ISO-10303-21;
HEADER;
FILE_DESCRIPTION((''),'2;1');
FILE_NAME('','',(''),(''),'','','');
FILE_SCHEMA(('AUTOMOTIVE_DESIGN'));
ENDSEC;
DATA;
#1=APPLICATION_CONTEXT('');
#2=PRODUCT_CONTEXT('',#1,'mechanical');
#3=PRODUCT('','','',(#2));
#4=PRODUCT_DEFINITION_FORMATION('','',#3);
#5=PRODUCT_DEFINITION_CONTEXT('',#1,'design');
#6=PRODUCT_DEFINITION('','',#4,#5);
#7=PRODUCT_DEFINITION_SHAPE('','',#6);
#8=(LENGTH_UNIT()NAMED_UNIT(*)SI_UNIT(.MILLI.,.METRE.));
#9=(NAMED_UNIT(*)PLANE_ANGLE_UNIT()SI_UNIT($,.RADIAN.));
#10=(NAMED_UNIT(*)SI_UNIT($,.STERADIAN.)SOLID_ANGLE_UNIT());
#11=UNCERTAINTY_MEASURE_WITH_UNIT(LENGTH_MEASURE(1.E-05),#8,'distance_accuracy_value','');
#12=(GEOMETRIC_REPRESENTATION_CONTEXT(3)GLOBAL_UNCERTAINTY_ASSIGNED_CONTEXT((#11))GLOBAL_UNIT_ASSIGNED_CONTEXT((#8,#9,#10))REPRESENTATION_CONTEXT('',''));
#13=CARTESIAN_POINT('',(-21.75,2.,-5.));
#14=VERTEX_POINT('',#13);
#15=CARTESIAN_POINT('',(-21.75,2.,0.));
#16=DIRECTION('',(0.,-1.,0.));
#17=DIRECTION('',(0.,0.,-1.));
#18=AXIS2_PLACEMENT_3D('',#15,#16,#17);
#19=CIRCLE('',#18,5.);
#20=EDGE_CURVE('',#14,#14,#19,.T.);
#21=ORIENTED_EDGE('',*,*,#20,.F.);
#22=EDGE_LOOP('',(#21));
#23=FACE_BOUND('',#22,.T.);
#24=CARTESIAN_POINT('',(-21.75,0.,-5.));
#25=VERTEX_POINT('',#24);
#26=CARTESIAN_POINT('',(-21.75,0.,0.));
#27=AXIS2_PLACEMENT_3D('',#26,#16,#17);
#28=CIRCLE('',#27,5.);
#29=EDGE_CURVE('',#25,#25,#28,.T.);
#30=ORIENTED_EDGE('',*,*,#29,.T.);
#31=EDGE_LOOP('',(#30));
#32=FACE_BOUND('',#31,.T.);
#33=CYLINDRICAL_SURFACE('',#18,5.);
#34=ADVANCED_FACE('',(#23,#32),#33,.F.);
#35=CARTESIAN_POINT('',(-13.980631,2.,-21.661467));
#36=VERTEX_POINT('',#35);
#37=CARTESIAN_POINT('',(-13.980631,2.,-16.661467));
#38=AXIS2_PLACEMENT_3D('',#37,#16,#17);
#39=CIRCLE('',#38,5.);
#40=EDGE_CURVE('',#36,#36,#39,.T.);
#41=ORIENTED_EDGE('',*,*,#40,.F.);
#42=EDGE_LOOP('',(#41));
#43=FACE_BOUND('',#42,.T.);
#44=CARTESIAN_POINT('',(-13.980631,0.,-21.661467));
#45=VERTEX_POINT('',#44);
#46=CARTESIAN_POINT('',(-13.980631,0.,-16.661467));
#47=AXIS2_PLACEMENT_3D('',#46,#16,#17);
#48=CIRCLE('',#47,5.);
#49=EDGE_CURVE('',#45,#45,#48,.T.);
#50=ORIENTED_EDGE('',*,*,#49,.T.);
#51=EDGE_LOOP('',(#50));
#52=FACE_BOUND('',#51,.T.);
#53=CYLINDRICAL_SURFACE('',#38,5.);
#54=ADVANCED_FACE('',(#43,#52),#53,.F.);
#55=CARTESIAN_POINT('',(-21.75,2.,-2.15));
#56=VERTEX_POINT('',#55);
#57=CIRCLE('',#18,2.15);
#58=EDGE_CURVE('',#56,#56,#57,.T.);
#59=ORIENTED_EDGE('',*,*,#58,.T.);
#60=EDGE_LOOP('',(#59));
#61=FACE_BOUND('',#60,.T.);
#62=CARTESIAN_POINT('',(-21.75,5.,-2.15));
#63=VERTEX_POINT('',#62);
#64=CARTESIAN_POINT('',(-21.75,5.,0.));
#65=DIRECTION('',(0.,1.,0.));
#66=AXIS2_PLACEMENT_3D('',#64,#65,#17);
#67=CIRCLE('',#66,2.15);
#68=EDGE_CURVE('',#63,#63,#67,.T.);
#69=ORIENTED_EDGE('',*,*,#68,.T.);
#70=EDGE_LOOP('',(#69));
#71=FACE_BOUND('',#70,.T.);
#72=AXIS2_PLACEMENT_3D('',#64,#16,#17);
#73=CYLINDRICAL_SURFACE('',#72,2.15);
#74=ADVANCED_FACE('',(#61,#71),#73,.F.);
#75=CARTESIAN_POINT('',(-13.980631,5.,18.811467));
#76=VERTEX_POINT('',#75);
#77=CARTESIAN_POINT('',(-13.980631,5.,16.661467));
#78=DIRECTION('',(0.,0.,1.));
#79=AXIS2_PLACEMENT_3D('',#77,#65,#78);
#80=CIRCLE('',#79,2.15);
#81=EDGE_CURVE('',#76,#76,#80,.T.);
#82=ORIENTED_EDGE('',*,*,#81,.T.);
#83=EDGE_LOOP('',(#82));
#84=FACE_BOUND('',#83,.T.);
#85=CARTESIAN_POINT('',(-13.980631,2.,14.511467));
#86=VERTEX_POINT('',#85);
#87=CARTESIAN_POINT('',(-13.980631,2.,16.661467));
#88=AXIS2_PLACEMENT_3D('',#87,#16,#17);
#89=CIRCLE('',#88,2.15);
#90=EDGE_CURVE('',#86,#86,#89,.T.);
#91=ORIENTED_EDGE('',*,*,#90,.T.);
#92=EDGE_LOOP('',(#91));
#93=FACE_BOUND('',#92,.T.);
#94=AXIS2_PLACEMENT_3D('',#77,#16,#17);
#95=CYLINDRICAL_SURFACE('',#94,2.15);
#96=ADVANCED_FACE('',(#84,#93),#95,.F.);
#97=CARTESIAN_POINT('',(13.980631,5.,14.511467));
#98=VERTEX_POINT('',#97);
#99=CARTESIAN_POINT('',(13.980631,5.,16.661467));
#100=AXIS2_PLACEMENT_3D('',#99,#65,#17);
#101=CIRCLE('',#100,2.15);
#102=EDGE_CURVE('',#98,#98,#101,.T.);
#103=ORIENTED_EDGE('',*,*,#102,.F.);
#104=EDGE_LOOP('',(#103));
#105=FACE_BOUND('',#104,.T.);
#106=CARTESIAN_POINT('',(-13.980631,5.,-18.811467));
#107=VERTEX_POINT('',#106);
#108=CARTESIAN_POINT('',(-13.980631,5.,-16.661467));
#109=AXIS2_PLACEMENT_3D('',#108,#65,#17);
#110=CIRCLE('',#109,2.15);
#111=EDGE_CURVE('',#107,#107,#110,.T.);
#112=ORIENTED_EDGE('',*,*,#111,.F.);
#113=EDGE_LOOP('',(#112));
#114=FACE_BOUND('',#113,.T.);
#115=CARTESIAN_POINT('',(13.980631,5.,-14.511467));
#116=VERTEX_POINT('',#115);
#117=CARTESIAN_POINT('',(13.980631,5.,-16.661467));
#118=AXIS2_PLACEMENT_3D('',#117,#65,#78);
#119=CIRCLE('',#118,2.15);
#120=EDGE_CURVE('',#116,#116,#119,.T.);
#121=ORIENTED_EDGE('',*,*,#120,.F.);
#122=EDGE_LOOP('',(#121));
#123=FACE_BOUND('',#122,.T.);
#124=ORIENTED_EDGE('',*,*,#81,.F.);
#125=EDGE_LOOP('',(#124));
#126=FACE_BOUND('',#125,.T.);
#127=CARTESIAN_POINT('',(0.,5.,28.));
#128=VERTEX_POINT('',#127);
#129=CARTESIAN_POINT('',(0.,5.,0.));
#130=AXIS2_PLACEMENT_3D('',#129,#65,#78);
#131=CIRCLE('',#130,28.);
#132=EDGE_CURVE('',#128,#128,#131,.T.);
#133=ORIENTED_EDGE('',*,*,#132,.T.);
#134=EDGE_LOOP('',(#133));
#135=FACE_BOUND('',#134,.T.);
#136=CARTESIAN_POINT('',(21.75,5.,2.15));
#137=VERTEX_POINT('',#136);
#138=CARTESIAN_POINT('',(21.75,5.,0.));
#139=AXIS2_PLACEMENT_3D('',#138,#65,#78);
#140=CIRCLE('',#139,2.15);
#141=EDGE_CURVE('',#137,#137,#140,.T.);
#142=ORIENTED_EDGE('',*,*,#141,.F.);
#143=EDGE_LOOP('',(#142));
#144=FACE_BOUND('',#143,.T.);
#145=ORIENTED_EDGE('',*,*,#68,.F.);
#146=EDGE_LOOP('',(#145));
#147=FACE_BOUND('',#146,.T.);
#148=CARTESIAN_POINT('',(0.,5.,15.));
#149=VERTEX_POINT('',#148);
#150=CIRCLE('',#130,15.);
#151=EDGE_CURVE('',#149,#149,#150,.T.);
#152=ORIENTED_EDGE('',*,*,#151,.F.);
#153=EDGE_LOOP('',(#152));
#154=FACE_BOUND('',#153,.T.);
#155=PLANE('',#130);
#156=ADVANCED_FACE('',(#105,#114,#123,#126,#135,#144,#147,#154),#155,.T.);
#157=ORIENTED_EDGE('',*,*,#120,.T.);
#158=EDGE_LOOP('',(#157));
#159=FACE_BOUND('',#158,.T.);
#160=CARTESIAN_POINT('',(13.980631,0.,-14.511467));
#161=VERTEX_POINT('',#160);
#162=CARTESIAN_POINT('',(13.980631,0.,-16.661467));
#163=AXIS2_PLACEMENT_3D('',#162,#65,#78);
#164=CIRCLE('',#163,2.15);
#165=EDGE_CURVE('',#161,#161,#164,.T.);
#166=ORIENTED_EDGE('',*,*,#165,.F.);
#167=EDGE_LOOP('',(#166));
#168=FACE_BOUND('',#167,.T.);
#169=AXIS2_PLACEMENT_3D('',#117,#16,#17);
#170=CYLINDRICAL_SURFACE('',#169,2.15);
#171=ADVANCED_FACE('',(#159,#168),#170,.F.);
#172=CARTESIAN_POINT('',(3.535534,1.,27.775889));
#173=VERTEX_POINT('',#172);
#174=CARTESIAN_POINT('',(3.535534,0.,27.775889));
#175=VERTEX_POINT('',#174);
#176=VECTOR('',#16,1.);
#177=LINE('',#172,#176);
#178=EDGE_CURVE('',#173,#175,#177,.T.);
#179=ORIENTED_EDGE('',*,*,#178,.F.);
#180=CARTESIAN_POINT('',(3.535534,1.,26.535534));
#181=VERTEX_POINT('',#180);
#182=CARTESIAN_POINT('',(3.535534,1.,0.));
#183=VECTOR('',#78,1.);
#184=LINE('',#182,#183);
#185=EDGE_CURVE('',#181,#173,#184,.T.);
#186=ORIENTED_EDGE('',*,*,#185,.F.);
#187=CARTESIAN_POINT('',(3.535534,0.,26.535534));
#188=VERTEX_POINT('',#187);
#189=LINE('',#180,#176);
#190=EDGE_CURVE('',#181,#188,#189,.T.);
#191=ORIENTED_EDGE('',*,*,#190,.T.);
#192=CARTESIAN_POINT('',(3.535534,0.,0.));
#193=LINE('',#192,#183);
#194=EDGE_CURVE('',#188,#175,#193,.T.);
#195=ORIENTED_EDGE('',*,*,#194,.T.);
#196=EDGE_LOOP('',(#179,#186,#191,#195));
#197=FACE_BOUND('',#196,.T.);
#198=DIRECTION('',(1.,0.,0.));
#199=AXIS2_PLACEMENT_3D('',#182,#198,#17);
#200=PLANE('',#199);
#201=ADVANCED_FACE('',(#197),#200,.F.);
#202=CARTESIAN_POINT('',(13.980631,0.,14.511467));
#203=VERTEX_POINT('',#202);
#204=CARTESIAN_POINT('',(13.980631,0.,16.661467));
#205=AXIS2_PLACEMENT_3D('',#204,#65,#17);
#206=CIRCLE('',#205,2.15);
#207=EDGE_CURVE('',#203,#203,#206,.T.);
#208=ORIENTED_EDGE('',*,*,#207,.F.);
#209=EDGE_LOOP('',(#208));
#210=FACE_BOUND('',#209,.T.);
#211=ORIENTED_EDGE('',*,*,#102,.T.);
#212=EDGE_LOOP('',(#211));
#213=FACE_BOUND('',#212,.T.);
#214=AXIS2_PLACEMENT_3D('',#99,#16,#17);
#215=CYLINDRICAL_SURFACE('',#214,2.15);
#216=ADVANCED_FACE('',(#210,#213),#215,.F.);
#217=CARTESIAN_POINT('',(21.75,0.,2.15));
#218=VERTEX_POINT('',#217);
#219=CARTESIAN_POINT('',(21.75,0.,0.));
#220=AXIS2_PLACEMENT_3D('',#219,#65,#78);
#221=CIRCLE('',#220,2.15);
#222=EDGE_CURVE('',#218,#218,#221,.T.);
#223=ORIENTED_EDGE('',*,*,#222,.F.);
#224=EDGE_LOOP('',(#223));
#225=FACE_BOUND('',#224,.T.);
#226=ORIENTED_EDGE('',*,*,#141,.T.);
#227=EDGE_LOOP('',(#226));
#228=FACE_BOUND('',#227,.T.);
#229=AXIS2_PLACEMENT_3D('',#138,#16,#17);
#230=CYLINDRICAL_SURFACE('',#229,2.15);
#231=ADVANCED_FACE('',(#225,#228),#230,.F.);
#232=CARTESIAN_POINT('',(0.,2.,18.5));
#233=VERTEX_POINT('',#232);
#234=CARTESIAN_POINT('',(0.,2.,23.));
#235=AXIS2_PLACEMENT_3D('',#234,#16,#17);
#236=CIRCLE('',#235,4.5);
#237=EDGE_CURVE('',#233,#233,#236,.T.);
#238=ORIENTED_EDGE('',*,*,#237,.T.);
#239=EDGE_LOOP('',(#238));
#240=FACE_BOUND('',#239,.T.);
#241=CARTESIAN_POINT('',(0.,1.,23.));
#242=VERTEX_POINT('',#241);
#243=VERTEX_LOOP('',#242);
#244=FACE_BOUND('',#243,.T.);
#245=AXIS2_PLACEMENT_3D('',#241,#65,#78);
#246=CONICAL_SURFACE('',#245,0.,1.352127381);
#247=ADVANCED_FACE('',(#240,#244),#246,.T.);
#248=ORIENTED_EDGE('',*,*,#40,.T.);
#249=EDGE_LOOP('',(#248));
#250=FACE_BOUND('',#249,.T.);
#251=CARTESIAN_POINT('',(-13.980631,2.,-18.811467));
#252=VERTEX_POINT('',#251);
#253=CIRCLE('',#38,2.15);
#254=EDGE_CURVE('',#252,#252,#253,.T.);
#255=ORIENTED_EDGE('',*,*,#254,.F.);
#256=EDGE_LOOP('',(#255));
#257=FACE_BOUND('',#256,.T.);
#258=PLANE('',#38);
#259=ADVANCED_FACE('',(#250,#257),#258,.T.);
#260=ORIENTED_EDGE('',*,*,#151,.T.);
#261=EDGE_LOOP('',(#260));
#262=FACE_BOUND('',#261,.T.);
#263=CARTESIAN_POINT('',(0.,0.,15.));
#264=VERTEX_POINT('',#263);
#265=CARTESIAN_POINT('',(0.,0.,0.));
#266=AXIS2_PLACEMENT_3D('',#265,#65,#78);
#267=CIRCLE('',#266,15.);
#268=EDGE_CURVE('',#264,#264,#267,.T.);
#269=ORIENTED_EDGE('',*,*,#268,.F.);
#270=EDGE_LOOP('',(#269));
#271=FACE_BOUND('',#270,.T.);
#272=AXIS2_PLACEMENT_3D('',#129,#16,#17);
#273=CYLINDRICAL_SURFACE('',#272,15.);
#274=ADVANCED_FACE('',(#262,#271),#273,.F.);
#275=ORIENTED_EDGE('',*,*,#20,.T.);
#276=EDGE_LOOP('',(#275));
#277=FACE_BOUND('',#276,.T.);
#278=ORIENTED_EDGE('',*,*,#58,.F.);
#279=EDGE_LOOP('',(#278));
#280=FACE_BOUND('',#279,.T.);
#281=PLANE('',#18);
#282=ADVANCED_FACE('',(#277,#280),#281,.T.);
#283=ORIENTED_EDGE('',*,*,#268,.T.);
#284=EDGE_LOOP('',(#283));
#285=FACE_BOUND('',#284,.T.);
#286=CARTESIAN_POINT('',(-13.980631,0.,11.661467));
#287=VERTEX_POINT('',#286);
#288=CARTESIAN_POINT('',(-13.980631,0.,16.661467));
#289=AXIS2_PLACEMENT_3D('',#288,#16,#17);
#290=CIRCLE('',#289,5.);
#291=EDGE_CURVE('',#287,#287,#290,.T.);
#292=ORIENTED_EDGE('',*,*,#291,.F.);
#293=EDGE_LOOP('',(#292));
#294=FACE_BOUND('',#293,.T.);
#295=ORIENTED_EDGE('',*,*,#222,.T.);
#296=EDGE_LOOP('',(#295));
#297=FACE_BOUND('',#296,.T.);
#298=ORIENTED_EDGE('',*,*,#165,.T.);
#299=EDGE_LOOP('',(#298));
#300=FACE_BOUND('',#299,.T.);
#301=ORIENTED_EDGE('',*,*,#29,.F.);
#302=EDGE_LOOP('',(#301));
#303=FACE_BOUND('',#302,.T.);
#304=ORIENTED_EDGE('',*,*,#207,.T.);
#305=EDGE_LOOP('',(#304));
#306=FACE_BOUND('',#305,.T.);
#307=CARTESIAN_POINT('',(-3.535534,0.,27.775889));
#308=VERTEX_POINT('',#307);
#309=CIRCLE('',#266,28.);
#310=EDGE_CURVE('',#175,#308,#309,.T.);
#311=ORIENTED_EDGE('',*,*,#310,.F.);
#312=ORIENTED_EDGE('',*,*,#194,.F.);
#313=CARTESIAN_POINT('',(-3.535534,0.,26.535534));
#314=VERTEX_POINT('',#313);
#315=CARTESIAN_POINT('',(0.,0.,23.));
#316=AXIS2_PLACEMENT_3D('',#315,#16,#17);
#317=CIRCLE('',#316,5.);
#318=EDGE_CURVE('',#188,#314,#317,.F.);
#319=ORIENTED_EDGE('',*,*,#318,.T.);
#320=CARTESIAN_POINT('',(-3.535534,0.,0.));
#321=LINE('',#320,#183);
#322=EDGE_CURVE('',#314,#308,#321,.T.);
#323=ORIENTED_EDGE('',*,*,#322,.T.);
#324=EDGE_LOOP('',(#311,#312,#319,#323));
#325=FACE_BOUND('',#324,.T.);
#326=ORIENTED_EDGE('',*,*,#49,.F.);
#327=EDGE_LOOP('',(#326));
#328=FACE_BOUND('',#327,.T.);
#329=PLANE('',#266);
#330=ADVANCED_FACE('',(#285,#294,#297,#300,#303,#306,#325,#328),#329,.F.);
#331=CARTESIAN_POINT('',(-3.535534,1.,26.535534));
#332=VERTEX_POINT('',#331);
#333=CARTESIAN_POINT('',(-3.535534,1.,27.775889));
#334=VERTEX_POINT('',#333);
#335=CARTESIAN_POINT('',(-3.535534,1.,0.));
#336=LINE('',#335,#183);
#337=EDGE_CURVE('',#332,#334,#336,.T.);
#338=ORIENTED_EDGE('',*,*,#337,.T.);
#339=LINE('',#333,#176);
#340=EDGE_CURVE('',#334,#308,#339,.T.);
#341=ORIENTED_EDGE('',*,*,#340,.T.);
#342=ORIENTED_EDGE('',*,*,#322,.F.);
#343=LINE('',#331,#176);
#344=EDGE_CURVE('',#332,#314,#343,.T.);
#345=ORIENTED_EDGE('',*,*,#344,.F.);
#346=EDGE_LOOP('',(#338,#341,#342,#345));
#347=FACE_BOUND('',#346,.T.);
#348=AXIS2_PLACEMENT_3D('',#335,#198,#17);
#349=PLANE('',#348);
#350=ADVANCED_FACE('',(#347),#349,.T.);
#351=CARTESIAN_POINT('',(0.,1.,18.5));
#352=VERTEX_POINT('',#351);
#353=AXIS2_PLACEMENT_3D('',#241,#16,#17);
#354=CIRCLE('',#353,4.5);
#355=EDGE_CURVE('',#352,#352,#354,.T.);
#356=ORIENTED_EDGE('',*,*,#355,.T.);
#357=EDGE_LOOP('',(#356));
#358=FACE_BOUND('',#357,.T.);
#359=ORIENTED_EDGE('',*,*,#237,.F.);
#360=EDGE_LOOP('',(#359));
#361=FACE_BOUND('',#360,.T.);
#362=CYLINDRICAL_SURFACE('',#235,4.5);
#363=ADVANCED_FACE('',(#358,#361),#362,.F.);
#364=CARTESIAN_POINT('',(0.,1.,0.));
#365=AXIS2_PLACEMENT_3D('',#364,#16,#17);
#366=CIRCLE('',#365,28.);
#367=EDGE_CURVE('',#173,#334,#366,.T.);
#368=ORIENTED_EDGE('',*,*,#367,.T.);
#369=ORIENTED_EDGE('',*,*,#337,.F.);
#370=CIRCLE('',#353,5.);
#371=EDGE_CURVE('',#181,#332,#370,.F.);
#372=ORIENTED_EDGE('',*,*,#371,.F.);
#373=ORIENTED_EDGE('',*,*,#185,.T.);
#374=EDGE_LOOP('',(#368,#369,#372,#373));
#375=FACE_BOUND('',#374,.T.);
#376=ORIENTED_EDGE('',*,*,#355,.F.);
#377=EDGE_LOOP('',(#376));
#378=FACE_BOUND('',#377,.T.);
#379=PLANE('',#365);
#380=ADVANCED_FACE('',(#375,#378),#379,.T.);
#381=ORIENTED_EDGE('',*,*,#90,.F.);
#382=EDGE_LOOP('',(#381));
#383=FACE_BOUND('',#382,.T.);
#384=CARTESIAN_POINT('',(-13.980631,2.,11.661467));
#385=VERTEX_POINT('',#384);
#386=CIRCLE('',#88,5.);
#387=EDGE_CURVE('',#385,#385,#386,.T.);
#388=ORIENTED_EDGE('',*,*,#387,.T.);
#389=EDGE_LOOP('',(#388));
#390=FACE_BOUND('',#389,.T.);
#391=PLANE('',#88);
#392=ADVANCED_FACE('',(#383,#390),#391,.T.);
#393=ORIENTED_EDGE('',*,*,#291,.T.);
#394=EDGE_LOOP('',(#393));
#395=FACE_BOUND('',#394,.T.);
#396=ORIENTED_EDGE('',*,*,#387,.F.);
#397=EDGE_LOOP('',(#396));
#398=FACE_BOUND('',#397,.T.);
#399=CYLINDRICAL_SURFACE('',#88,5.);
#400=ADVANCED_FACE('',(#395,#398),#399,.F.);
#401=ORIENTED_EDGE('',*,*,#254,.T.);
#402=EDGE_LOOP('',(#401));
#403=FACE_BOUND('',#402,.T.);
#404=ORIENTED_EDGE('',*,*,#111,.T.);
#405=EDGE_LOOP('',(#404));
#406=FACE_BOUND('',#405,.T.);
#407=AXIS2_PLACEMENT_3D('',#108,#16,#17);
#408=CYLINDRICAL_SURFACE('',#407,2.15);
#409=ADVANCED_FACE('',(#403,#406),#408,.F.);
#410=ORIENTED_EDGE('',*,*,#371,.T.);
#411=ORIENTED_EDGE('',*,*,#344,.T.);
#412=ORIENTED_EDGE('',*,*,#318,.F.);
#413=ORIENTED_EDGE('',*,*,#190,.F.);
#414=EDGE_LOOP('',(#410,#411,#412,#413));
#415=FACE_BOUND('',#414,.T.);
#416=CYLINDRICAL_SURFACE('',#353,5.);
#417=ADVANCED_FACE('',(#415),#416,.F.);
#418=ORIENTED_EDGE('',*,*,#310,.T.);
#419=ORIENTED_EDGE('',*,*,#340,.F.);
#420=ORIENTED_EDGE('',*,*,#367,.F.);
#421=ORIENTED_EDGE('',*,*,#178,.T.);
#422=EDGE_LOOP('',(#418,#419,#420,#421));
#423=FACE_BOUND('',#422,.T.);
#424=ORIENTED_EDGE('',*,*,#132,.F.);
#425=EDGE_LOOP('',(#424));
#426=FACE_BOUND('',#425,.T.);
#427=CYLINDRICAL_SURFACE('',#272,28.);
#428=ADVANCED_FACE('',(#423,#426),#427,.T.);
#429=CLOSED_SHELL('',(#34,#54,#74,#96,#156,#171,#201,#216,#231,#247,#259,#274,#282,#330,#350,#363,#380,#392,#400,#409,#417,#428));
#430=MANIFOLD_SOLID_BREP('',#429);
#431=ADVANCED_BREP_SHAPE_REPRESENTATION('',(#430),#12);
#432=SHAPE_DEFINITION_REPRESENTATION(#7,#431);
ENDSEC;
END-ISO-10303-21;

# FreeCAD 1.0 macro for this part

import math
import FreeCAD as App
import Part
import Sketcher
from FreeCAD import Vector


def add_polygon(sketch, points):
    """Adds a closed chain of lines whose ends are joined by coincident constraints."""
    first, n = sketch.GeometryCount, len(points)
    for a, b in zip(points, points[1:] + points[:1]):
        sketch.addGeometry(Part.LineSegment(App.Vector(*a, 0), App.Vector(*b, 0)), False)
    for i in range(n):
        sketch.addConstraint(Sketcher.Constraint("Coincident", first + i, 2, first + (i + 1) % n, 1))

doc = App.newDocument("Part")
body = doc.addObject("PartDesign::Body", "Body")

sketch1 = body.newObject("Sketcher::SketchObject", "Sketch")
sketch1.AttachmentSupport = (doc.getObject("XZ_Plane"), [""])
sketch1.MapMode = "FlatFace"
sketch1.addGeometry([
    Part.Circle(Vector(0, 0, 0), Vector(0, 0, 1), 28),
    Part.Circle(Vector(-14, 16.7, 0), Vector(0, 0, 1), 2.1),
    Part.Circle(Vector(14, 16.7, 0), Vector(0, 0, 1), 2.1),
    Part.Circle(Vector(-21.8, 0, 0), Vector(0, 0, 1), 2.1),
    Part.Circle(Vector(-14, -16.7, 0), Vector(0, 0, 1), 2.1),
    Part.Circle(Vector(0, 0, 0), Vector(0, 0, 1), 15),
    Part.Circle(Vector(21.8, 0, 0), Vector(0, 0, 1), 2.1),
    Part.Circle(Vector(14, -16.7, 0), Vector(0, 0, 1), 2.1),
], False)
sketch1.addConstraint([
    Sketcher.Constraint("Coincident", 0, 3, -1, 1),
    Sketcher.Constraint("Coincident", 5, 3, -1, 1),
    Sketcher.Constraint("Equal", 1, 2),
    Sketcher.Constraint("Equal", 2, 3),
    Sketcher.Constraint("Equal", 3, 4),
    Sketcher.Constraint("Equal", 4, 6),
    Sketcher.Constraint("Equal", 6, 7),
    Sketcher.Constraint("Symmetric", 2, 3, 4, 3, -1, 1),
    Sketcher.Constraint("Symmetric", 3, 3, 6, 3, -1, 1),
    Sketcher.Constraint("Symmetric", 1, 3, 7, 3, -1, 1),
    Sketcher.Constraint("Symmetric", 1, 3, 2, 3, -2),
    Sketcher.Constraint("PointOnObject", 3, 3, -1),
    Sketcher.Constraint("Diameter", 0, 56.0),
    Sketcher.Constraint("Diameter", 5, 30.0),
    Sketcher.Constraint("Diameter", 1, 4.3),
    Sketcher.Constraint("DistanceX", 3, 3, -1, 1, 21.75),
    Sketcher.Constraint("DistanceX", 1, 3, -1, 1, 13.980631),
    Sketcher.Constraint("DistanceY", -1, 1, 1, 3, 16.661467),
])
pad1 = body.newObject("PartDesign::Pad", "Pad")
pad1.Profile = sketch1
pad1.Length = 5
pad1.Reversed = True

sketch2 = body.newObject("Sketcher::SketchObject", "Sketch001")
sketch2.AttachmentSupport = (doc.getObject("XZ_Plane"), [""])
sketch2.MapMode = "FlatFace"
sketch2.addGeometry([
    Part.LineSegment(Vector(3.5, 27.8, 0), Vector(3.5, 26.5, 0)),
    Part.ArcOfCircle(Part.Circle(Vector(0, 23, 0), Vector(0, 0, 1), 5), math.radians(135), math.radians(405)),
    Part.LineSegment(Vector(-3.5, 26.5, 0), Vector(-3.5, 27.8, 0)),
    Part.ArcOfCircle(Part.Circle(Vector(0, 0, 0), Vector(0, 0, 1), 28), math.radians(82.75), math.radians(97.25)),
], False)
sketch2.addConstraint([
    Sketcher.Constraint("Coincident", 0, 2, 1, 2),
    Sketcher.Constraint("Coincident", 1, 1, 2, 1),
    Sketcher.Constraint("Coincident", 2, 2, 3, 2),
    Sketcher.Constraint("Coincident", 3, 1, 0, 1),
    Sketcher.Constraint("Vertical", 0),
    Sketcher.Constraint("Vertical", 2),
    Sketcher.Constraint("Coincident", 3, 3, -1, 1),
    Sketcher.Constraint("Symmetric", 0, 2, 1, 1, -2),
    Sketcher.Constraint("Radius", 1, 5.0),
    Sketcher.Constraint("Radius", 3, 28.0),
    Sketcher.Constraint("DistanceY", -1, 1, 1, 3, 23.0),
    Sketcher.Constraint("DistanceY", 0, 2, 0, 1, 1.240355),
])
pocket1 = body.newObject("PartDesign::Pocket", "Pocket")
pocket1.Profile = sketch2
pocket1.Length = 1

sketch3 = body.newObject("Sketcher::SketchObject", "Sketch002")
sketch3.AttachmentSupport = (doc.getObject("XZ_Plane"), [""])
sketch3.MapMode = "FlatFace"
sketch3.addGeometry([
    Part.Circle(Vector(-14, 17, 0), Vector(0, 0, 1), 5),
    Part.Circle(Vector(-22, 0, 0), Vector(0, 0, 1), 5),
    Part.Circle(Vector(-14, -17, 0), Vector(0, 0, 1), 5),
], False)
sketch3.addConstraint([
    Sketcher.Constraint("Equal", 0, 1),
    Sketcher.Constraint("Equal", 1, 2),
    Sketcher.Constraint("Symmetric", 0, 3, 2, 3, -1),
    Sketcher.Constraint("PointOnObject", 1, 3, -1),
    Sketcher.Constraint("Diameter", 0, 10.0),
    Sketcher.Constraint("DistanceX", 1, 3, -1, 1, 21.75),
    Sketcher.Constraint("DistanceX", 0, 3, -1, 1, 13.980631),
    Sketcher.Constraint("DistanceY", -1, 1, 0, 3, 16.661467),
])
pocket2 = body.newObject("PartDesign::Pocket", "Pocket001")
pocket2.Profile = sketch3
pocket2.Length = 2

sketch4 = body.newObject("Sketcher::SketchObject", "Sketch003")
sketch4.AttachmentSupport = (doc.getObject("XZ_Plane"), [""])
sketch4.MapMode = "FlatFace"
sketch4.AttachmentOffset = App.Placement(Vector(0, 0, -1), App.Rotation())
sketch4.addGeometry(Part.Circle(Vector(0, 23, 0), Vector(0, 0, 1), 4.5), False)
sketch4.addConstraint([
    Sketcher.Constraint("PointOnObject", 0, 3, -2),
    Sketcher.Constraint("Diameter", 0, 9.0),
    Sketcher.Constraint("DistanceY", -1, 1, 0, 3, 23.0),
])
pocket3 = body.newObject("PartDesign::Pocket", "Pocket002")
pocket3.Profile = sketch4
pocket3.Length = 1

sketch5 = body.newObject("Sketcher::SketchObject", "Sketch004")
sketch5.AttachmentSupport = (doc.getObject("YZ_Plane"), [""])
sketch5.MapMode = "FlatFace"
add_polygon(sketch5, [(2, 23), (1, 23), (2, 27.5)])
sketch5.addGeometry(Part.LineSegment(Vector(2, 23, 0), Vector(1, 23, 0)), True)
sketch5.addConstraint([
    Sketcher.Constraint("Horizontal", 0),
    Sketcher.Constraint("Vertical", 2),
    Sketcher.Constraint("Horizontal", 3),
    Sketcher.Constraint("Coincident", 3, 1, 2, 2),
    Sketcher.Constraint("Equal", 0, 3),
    Sketcher.Constraint("DistanceX", 0, 2, 0, 1, 1.0),
    Sketcher.Constraint("DistanceY", 2, 2, 2, 1, 4.5),
    Sketcher.Constraint("DistanceX", -1, 1, 0, 2, 1.0),
    Sketcher.Constraint("DistanceY", -1, 1, 0, 2, 23.0),
])
revolution = body.newObject("PartDesign::Revolution", "Revolution")
revolution.Profile = sketch5
revolution.ReferenceAxis = (sketch5, ["Axis0"])
revolution.Angle = 360

doc.recompute()
